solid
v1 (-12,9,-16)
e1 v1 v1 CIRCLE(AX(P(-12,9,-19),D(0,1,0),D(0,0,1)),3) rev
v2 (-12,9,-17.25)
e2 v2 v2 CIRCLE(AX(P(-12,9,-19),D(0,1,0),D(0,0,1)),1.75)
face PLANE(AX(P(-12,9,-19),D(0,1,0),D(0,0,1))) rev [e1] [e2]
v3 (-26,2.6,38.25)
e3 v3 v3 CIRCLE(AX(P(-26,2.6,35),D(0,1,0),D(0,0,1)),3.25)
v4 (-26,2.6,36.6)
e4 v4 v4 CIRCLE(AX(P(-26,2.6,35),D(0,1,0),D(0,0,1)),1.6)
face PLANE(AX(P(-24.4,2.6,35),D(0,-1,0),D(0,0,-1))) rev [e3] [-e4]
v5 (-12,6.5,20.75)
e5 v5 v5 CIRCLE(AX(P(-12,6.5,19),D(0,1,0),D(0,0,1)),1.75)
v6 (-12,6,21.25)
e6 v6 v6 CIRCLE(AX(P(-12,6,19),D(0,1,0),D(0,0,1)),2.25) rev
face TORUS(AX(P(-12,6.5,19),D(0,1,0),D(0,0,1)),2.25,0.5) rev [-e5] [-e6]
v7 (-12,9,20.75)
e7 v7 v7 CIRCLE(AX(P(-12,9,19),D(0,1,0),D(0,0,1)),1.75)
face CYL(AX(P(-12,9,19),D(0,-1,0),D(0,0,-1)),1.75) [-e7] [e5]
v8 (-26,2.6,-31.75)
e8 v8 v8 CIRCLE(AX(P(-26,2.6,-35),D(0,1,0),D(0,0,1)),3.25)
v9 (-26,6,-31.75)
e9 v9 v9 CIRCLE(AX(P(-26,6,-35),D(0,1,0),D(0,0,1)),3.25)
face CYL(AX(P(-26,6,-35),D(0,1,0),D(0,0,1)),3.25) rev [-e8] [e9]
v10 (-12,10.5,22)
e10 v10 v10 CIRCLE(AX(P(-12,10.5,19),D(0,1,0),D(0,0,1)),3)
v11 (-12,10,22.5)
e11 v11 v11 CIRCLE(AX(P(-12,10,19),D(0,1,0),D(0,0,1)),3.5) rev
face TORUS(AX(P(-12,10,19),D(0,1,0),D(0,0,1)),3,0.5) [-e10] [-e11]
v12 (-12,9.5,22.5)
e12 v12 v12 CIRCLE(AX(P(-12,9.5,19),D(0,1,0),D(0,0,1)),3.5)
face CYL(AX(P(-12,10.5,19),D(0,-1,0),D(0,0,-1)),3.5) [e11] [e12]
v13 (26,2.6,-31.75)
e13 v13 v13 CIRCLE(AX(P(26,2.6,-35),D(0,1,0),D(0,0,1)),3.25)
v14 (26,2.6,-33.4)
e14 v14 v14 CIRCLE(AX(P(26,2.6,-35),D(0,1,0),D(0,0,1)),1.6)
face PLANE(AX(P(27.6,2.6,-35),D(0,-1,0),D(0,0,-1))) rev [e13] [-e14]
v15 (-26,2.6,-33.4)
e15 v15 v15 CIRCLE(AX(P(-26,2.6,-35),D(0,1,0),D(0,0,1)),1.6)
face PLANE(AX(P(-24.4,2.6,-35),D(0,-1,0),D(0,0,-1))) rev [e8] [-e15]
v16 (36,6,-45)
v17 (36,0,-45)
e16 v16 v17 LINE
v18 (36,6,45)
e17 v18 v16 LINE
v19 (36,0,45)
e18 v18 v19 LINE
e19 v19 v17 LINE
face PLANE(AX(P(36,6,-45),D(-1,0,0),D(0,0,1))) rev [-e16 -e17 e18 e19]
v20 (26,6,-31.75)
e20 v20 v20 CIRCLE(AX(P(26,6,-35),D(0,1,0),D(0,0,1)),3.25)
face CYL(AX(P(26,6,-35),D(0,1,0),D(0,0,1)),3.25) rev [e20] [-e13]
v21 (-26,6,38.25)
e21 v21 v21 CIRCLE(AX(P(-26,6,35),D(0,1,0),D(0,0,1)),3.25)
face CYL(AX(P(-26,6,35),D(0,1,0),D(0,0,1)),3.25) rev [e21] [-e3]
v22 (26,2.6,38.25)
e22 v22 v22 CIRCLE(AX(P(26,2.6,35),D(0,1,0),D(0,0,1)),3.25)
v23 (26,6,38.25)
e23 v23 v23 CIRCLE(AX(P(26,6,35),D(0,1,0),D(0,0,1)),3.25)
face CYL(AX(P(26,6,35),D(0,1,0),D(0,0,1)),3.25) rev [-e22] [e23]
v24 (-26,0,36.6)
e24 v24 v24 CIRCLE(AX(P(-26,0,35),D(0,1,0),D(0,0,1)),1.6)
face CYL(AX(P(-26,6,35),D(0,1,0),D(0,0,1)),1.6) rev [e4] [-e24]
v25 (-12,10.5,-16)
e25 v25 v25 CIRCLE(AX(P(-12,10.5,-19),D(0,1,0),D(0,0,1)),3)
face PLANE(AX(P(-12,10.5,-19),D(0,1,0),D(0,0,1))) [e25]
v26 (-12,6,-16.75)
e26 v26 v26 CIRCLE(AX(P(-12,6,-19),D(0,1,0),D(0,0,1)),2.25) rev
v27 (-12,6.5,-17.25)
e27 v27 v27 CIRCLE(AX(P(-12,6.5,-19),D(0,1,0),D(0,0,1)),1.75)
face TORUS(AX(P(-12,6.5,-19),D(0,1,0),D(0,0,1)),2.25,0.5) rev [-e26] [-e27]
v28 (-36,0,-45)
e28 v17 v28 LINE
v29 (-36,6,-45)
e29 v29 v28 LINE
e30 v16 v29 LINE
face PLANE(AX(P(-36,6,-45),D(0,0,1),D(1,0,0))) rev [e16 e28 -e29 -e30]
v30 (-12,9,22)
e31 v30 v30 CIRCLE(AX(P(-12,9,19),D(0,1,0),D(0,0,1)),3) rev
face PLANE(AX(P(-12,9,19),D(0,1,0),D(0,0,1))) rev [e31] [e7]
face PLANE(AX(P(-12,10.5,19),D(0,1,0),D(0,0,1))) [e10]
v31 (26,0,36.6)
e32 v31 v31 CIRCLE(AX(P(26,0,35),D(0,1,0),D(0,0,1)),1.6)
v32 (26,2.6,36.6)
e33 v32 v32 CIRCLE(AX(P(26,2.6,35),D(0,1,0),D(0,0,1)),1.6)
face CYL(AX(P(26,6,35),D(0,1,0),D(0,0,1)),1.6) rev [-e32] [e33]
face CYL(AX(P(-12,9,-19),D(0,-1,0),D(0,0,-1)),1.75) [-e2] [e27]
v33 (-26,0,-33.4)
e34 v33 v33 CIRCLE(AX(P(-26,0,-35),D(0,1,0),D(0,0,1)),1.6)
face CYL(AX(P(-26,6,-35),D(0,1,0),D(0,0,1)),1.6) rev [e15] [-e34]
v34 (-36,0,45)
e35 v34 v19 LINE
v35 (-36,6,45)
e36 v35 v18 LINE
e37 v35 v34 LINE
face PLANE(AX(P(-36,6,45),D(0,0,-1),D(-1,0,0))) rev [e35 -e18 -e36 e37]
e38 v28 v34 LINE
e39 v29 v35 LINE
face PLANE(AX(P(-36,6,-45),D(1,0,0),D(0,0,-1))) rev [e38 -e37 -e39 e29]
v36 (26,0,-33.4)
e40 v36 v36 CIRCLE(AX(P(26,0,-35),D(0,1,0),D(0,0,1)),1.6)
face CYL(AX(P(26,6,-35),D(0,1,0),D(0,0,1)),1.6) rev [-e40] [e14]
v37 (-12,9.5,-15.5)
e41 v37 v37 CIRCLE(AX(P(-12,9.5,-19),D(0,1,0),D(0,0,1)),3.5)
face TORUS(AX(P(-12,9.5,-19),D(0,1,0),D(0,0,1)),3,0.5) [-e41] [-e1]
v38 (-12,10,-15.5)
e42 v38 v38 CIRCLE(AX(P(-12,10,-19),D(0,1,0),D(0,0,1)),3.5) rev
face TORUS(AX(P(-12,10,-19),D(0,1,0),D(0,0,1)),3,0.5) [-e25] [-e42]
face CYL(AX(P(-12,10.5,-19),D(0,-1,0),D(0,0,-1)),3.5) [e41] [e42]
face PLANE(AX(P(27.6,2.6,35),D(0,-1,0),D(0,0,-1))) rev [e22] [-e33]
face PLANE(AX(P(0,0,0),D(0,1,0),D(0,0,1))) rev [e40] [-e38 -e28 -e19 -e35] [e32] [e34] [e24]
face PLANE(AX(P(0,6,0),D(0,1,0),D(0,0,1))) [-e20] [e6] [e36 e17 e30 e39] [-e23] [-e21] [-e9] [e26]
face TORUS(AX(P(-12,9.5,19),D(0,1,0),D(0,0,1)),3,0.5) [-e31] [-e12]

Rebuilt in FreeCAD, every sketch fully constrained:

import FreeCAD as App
import Part
import Sketcher

V = App.Vector
Q = App.Units.Quantity


def edges_at(feature, points):
    """Names of the edges that pass closest to the given points."""
    edges = feature.Shape.Edges
    near = lambda p: min(range(len(edges)), key=lambda i: edges[i].distToShape(Part.Vertex(*p))[0])
    return sorted({f"Edge{near(p) + 1}" for p in points})

doc = App.newDocument("Part")
params = doc.addObject("Spreadsheet::Sheet", "Params")
for row, (alias, value) in enumerate([
    ("sketch1_width", "72 mm"),
    ("sketch1_height", "90 mm"),
    ("pad1_length", "6 mm"),
    ("sketch2_diameter", "3.5 mm"),
    ("pad2_length", "3 mm"),
    ("sketch3_diameter", "7 mm"),
    ("pad3_length", "1.5 mm"),
    ("fillet_radius", "0.5 mm"),
    ("sketch4_diameter", "3.2 mm"),
    ("hole_diameter", "3.2 mm"),
    ("hole_depth", "7.7 mm"),
    ("hole_cbore_diameter", "6.5 mm"),
    ("hole_cbore_depth", "3.4 mm"),
], start=1):
    params.set(f"A{row}", alias)
    params.set(f"B{row}", "=" + value)
    params.setAlias(f"B{row}", alias)

body = doc.addObject("PartDesign::Body", "Body")

# Sketch on XZ plane
sketch1 = body.newObject("Sketcher::SketchObject", "Sketch")
sketch1.AttachmentSupport = (doc.getObject("XZ_Plane"), [""])
sketch1.MapMode = "FlatFace"
sketch1.addGeometry(Part.LineSegment(V(-36, -45, 0), V(-36, 45, 0)), False)
sketch1.addGeometry(Part.LineSegment(V(-36, 45, 0), V(36, 45, 0)), False)
sketch1.addGeometry(Part.LineSegment(V(36, 45, 0), V(36, -45, 0)), False)
sketch1.addGeometry(Part.LineSegment(V(36, -45, 0), V(-36, -45, 0)), False)
sketch1.addConstraint(Sketcher.Constraint("Coincident", 0, 2, 1, 1))
sketch1.addConstraint(Sketcher.Constraint("Coincident", 1, 2, 2, 1))
sketch1.addConstraint(Sketcher.Constraint("Coincident", 2, 2, 3, 1))
sketch1.addConstraint(Sketcher.Constraint("Coincident", 3, 2, 0, 1))
sketch1.addConstraint(Sketcher.Constraint("Vertical", 0))
sketch1.addConstraint(Sketcher.Constraint("Horizontal", 1))
sketch1.addConstraint(Sketcher.Constraint("Vertical", 2))
sketch1.addConstraint(Sketcher.Constraint("Horizontal", 3))
sketch1.addConstraint(Sketcher.Constraint("Symmetric", 0, 2, 2, 2, -1, 1))
sketch1.addConstraint(Sketcher.Constraint("DistanceX", 1, 1, 1, 2, Q("72 mm")))
sketch1.addConstraint(Sketcher.Constraint("DistanceY", 0, 1, 0, 2, Q("90 mm")))
sketch1.setExpression("Constraints[9]", "Params.sketch1_width")
sketch1.setExpression("Constraints[10]", "Params.sketch1_height")
pad1 = body.newObject("PartDesign::Pad", "Pad")
pad1.Profile = sketch1
pad1.setExpression("Length", "Params.pad1_length")
pad1.Reversed = True

# Sketch on XZ plane
sketch2 = body.newObject("Sketcher::SketchObject", "Sketch001")
sketch2.AttachmentSupport = (doc.getObject("XZ_Plane"), [""])
sketch2.MapMode = "FlatFace"
sketch2.AttachmentOffset = App.Placement(V(0, 0, -6), App.Rotation())
sketch2.addGeometry(Part.Circle(V(-12, 19, 0), V(0, 0, 1), 1.8), False)
sketch2.addGeometry(Part.Circle(V(-12, -19, 0), V(0, 0, 1), 1.8), False)
sketch2.addConstraint(Sketcher.Constraint("Equal", 0, 1))
sketch2.addConstraint(Sketcher.Constraint("Symmetric", 0, 3, 1, 3, -1))
sketch2.addConstraint(Sketcher.Constraint("Diameter", 0, Q("3.5 mm")))
sketch2.addConstraint(Sketcher.Constraint("DistanceX", 0, 3, -1, 1, Q("12 mm")))
sketch2.addConstraint(Sketcher.Constraint("DistanceY", -1, 1, 0, 3, Q("19 mm")))
sketch2.setExpression("Constraints[2]", "Params.sketch2_diameter")
pad2 = body.newObject("PartDesign::Pad", "Pad001")
pad2.Profile = sketch2
pad2.setExpression("Length", "Params.pad2_length")
pad2.Reversed = True

# Sketch on XZ plane
sketch3 = body.newObject("Sketcher::SketchObject", "Sketch002")
sketch3.AttachmentSupport = (doc.getObject("XZ_Plane"), [""])
sketch3.MapMode = "FlatFace"
sketch3.AttachmentOffset = App.Placement(V(0, 0, -9), App.Rotation())
sketch3.addGeometry(Part.Circle(V(-12, -19, 0), V(0, 0, 1), 3.5), False)
sketch3.addGeometry(Part.Circle(V(-12, 19, 0), V(0, 0, 1), 3.5), False)
sketch3.addConstraint(Sketcher.Constraint("Equal", 0, 1))
sketch3.addConstraint(Sketcher.Constraint("Symmetric", 0, 3, 1, 3, -1))
sketch3.addConstraint(Sketcher.Constraint("Diameter", 0, Q("7 mm")))
sketch3.addConstraint(Sketcher.Constraint("DistanceX", 0, 3, -1, 1, Q("12 mm")))
sketch3.addConstraint(Sketcher.Constraint("DistanceY", 0, 3, -1, 1, Q("19 mm")))
sketch3.setExpression("Constraints[2]", "Params.sketch3_diameter")
pad3 = body.newObject("PartDesign::Pad", "Pad002")
pad3.Profile = sketch3
pad3.setExpression("Length", "Params.pad3_length")
pad3.Reversed = True
doc.recompute()

fillet = body.newObject("PartDesign::Fillet", "Fillet")
fillet.Base = (pad3, edges_at(pad3, [
    (-12, 6, 17.25),
    (-12, 6, -20.75),
    (-12, 9, 15.5),
    (-12, 10.5, 15.5),
    (-12, 9, -22.5),
    (-12, 10.5, -22.5),
]))
fillet.setExpression("Radius", "Params.fillet_radius")

# Sketch on XZ plane
sketch4 = body.newObject("Sketcher::SketchObject", "Sketch003")
sketch4.AttachmentSupport = (doc.getObject("XZ_Plane"), [""])
sketch4.MapMode = "FlatFace"
sketch4.AttachmentOffset = App.Placement(V(0, 0, -6), App.Rotation())
sketch4.addGeometry(Part.Circle(V(-26, -35, 0), V(0, 0, 1), 1.6), False)
sketch4.addGeometry(Part.Circle(V(26, -35, 0), V(0, 0, 1), 1.6), False)
sketch4.addGeometry(Part.Circle(V(26, 35, 0), V(0, 0, 1), 1.6), False)
sketch4.addGeometry(Part.Circle(V(-26, 35, 0), V(0, 0, 1), 1.6), False)
sketch4.addConstraint(Sketcher.Constraint("Equal", 0, 1))
sketch4.addConstraint(Sketcher.Constraint("Equal", 1, 2))
sketch4.addConstraint(Sketcher.Constraint("Equal", 2, 3))
sketch4.addConstraint(Sketcher.Constraint("Symmetric", 0, 3, 2, 3, -1, 1))
sketch4.addConstraint(Sketcher.Constraint("Symmetric", 1, 3, 3, 3, -1, 1))
sketch4.addConstraint(Sketcher.Constraint("Symmetric", 0, 3, 1, 3, -2))
sketch4.addConstraint(Sketcher.Constraint("Diameter", 0, Q("3.2 mm")))
sketch4.addConstraint(Sketcher.Constraint("DistanceX", 0, 3, -1, 1, Q("26 mm")))
sketch4.addConstraint(Sketcher.Constraint("DistanceY", 0, 3, -1, 1, Q("35 mm")))
sketch4.setExpression("Constraints[6]", "Params.sketch4_diameter")
doc.recompute()
hole = body.newObject("PartDesign::Hole", "Hole")
hole.Profile = sketch4
hole.ThreadType = "None"
hole.setExpression("Diameter", "Params.hole_diameter")
hole.DepthType = "Dimension"
hole.setExpression("Depth", "Params.hole_depth")
hole.DrillPoint = "Angled"
hole.DrillPointAngle = 118
hole.HoleCutType = "Counterbore"
hole.setExpression("HoleCutDiameter", "Params.hole_cbore_diameter")
hole.setExpression("HoleCutDepth", "Params.hole_cbore_depth")
hole.Reversed = True

doc.recompute()
